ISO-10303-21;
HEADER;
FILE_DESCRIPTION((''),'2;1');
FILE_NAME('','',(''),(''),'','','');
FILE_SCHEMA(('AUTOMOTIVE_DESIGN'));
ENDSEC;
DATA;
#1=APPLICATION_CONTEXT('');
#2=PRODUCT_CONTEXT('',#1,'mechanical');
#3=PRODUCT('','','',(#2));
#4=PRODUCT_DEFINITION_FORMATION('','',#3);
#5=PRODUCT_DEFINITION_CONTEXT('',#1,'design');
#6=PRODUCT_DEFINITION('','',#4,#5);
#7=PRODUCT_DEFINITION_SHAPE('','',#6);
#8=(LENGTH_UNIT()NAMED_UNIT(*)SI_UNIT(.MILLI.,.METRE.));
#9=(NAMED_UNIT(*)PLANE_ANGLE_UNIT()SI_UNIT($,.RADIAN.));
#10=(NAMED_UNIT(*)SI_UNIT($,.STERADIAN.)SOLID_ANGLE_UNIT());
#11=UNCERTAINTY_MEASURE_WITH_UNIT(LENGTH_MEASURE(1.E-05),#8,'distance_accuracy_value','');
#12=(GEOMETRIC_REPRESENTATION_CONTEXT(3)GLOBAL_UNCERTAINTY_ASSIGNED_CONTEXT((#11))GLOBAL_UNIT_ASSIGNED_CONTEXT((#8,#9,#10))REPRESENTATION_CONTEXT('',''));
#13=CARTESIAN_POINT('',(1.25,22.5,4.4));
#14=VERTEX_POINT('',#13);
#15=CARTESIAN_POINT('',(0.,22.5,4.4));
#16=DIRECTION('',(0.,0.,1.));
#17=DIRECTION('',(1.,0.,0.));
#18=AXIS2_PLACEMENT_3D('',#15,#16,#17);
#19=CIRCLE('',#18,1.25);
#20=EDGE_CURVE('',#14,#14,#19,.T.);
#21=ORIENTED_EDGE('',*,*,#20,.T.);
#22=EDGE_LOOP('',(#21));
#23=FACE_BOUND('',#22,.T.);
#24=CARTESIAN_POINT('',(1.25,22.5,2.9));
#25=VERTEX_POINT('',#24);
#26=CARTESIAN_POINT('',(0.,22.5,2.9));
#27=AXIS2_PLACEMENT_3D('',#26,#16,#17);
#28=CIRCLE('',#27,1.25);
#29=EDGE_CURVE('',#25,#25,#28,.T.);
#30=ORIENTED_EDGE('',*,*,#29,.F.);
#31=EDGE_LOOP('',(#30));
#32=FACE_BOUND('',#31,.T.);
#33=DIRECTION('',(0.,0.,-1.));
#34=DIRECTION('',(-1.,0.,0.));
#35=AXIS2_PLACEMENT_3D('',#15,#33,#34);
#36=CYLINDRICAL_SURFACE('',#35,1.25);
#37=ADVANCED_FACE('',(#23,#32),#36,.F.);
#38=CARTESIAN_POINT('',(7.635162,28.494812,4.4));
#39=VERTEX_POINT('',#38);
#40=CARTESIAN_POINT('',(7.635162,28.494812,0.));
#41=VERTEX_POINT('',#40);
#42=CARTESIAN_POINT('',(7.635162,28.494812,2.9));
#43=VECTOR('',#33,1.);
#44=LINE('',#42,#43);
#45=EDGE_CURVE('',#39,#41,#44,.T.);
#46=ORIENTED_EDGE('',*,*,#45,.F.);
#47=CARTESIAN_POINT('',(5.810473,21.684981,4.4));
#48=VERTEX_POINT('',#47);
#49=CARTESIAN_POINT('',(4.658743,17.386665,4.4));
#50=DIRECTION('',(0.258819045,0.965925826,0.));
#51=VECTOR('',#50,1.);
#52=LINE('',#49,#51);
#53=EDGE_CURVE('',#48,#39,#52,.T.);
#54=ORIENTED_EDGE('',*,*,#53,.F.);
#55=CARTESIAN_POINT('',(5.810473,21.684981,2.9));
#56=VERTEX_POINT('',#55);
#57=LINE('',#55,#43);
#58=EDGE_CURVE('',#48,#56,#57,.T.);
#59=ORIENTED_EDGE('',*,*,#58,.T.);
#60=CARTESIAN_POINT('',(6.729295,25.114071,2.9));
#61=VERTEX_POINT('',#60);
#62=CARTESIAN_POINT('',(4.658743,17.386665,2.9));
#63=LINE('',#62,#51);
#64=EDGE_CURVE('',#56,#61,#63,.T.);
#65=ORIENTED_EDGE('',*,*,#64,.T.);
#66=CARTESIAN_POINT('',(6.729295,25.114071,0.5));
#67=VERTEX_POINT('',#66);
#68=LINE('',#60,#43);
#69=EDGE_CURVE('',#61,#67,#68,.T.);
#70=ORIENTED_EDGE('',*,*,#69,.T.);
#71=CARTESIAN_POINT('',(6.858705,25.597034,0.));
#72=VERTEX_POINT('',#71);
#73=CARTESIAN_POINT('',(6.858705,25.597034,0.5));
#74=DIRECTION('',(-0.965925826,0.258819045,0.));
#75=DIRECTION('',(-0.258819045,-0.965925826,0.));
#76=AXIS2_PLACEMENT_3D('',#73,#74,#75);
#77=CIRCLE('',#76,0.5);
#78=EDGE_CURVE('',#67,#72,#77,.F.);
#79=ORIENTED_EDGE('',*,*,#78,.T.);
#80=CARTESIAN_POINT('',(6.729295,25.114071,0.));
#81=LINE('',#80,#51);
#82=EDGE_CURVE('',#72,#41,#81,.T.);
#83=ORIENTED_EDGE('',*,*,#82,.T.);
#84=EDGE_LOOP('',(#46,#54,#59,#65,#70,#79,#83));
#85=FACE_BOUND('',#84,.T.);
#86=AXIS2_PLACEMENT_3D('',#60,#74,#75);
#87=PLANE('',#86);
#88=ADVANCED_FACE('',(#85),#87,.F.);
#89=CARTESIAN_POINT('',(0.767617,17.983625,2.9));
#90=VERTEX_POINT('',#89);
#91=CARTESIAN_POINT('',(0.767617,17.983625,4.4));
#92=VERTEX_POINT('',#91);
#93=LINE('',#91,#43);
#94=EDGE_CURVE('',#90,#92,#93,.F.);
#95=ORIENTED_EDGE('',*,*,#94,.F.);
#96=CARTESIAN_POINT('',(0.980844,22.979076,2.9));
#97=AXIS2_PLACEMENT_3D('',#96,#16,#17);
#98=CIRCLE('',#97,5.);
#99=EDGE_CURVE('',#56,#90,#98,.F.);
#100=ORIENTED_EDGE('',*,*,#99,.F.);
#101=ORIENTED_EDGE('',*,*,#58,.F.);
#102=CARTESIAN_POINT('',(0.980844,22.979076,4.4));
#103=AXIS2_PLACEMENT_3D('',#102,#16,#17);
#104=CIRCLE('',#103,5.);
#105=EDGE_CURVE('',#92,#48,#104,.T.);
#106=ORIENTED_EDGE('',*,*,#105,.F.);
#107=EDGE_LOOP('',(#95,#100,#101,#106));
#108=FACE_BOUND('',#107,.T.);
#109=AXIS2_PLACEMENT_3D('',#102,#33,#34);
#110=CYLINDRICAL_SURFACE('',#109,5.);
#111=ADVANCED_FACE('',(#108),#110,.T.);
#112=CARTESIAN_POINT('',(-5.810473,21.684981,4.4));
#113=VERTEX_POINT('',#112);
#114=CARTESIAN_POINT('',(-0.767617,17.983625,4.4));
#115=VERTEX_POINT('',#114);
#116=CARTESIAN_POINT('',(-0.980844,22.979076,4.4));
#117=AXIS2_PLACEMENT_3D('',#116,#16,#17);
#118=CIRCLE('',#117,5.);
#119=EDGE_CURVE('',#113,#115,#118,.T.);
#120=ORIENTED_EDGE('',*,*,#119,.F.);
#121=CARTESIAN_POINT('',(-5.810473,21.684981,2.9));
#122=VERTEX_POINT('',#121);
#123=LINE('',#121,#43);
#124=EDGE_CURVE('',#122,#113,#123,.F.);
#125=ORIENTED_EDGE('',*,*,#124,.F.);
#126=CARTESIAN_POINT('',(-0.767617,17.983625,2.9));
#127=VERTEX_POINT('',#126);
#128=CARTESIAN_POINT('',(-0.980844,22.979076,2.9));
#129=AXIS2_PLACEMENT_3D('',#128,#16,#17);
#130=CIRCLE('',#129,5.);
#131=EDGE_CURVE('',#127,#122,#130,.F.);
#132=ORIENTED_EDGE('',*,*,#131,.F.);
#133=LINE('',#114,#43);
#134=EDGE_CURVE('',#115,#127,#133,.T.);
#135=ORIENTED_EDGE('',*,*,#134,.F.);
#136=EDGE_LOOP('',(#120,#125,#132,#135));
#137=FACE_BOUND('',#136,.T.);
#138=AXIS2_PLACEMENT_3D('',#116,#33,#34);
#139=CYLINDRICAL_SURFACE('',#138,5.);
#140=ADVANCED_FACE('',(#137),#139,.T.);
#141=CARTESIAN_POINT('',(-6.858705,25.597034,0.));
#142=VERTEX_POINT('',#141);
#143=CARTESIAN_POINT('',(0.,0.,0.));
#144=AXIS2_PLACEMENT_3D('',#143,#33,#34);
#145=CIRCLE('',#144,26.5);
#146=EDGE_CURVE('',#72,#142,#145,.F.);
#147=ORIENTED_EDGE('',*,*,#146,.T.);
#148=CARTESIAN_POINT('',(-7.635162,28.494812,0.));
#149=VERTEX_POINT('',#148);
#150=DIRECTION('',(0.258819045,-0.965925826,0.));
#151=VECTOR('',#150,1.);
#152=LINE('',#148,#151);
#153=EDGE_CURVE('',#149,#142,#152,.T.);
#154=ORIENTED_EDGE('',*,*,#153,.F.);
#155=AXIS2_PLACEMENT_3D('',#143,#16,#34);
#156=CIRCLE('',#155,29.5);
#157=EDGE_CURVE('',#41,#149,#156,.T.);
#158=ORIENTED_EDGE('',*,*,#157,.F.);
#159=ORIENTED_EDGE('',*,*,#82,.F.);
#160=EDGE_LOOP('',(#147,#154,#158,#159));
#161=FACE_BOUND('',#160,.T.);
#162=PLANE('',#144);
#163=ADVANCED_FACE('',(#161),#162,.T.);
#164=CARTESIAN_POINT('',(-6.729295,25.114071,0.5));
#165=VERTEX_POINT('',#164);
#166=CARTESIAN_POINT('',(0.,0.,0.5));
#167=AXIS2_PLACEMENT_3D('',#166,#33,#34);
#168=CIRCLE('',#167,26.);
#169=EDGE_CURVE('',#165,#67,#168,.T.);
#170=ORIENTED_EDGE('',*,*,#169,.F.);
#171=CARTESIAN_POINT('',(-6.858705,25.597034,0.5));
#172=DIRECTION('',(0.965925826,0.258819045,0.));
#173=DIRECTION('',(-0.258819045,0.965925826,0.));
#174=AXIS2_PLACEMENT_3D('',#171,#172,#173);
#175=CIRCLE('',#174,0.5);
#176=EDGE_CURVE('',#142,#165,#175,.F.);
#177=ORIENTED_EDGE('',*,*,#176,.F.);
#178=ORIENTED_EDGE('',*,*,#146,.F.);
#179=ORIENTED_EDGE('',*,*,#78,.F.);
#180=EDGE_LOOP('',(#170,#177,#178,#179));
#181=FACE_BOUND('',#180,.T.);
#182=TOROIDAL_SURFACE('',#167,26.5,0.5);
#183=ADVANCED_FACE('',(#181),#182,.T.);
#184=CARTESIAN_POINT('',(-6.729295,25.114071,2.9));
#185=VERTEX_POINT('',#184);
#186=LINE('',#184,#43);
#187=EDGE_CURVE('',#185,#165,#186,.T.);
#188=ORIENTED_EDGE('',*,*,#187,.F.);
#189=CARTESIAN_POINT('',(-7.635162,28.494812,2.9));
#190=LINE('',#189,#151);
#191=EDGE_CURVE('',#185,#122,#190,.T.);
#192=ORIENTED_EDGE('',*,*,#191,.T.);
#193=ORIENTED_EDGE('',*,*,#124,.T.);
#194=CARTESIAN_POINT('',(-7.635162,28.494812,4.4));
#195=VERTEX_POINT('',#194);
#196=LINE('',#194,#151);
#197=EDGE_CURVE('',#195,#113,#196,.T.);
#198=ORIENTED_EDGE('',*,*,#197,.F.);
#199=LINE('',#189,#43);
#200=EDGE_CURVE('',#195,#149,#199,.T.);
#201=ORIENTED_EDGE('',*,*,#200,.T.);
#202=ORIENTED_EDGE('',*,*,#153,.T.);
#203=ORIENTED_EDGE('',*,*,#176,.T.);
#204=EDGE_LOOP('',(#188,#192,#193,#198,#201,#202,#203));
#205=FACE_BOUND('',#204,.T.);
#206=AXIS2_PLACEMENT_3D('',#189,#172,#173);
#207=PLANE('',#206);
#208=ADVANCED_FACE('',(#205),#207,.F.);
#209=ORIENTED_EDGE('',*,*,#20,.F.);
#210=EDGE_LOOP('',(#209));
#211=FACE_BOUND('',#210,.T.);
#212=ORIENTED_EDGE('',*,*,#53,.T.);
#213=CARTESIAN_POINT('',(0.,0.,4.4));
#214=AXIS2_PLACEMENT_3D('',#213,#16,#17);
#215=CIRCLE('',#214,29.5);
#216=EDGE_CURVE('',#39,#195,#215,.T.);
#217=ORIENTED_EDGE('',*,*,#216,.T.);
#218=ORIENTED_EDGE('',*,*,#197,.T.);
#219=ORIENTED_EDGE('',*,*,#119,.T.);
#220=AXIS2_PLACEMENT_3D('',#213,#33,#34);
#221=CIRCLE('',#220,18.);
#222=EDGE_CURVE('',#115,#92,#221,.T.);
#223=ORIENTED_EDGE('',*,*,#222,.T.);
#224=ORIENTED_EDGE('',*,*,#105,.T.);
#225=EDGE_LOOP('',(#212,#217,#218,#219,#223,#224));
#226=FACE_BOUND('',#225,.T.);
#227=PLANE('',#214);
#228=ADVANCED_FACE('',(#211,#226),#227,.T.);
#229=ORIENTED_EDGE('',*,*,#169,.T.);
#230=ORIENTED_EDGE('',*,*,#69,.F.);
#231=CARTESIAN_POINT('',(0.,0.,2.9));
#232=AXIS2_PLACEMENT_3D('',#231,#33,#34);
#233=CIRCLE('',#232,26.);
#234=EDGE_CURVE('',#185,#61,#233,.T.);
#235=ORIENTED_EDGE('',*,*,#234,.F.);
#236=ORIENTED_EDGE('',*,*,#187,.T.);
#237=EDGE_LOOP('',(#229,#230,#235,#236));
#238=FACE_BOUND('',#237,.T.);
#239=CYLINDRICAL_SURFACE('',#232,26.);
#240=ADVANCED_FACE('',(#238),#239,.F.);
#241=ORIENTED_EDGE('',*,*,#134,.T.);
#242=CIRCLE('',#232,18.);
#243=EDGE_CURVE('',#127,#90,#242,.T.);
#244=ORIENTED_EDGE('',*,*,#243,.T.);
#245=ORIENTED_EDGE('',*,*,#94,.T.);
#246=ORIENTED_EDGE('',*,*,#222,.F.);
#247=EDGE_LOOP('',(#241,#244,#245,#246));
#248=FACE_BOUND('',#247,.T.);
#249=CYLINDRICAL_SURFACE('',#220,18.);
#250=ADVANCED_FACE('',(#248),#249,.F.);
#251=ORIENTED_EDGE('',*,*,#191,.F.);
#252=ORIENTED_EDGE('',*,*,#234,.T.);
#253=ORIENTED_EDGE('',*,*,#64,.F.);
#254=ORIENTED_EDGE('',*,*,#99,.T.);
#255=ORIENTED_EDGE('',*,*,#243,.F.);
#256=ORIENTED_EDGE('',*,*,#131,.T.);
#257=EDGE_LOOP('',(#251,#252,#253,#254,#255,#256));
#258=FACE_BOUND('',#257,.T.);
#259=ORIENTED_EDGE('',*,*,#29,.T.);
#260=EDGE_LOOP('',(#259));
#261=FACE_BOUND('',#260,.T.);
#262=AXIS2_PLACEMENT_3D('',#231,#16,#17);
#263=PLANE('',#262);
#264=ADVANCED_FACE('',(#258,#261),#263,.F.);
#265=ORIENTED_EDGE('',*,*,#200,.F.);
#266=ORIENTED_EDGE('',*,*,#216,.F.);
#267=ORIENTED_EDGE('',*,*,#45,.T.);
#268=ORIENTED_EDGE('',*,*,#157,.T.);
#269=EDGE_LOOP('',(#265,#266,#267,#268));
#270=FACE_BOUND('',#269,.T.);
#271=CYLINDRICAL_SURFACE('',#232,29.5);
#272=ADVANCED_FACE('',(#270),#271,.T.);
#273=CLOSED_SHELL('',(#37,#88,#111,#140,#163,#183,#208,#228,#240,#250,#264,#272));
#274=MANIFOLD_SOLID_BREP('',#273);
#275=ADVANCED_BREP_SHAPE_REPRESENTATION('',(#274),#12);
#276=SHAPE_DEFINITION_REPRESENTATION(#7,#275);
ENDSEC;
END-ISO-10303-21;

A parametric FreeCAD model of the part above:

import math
import FreeCAD as App
import Part
import Sketcher
from FreeCAD import Vector
Q = App.Units.Quantity


def edges_at(feature, points):
    """Names of the edges that pass closest to the given points."""
    edges = feature.Shape.Edges
    near = lambda p: min(range(len(edges)), key=lambda i: edges[i].distToShape(Part.Vertex(*p))[0])
    return sorted({f"Edge{near(p) + 1}" for p in points})

doc = App.newDocument("Part")
body = doc.addObject("PartDesign::Body", "Body")

sketch1 = doc.addObject("Sketcher::SketchObject", "Sketch")
body.addObject(sketch1)
sketch1.AttachmentSupport = (doc.XY_Plane, [""])
sketch1.MapMode = "FlatFace"
sketch1.addGeometry(Part.LineSegment(Vector(-7.635162, 28.494812, 0), Vector(-6.729295, 25.114071, 0)), False)
sketch1.addGeometry(Part.ArcOfCircle(Part.Circle(Vector(0, 0, 0), Vector(0, 0, 1), 26), math.radians(75), math.radians(105)), False)
sketch1.addGeometry(Part.LineSegment(Vector(6.729295, 25.114071, 0), Vector(7.635162, 28.494812, 0)), False)
sketch1.addGeometry(Part.ArcOfCircle(Part.Circle(Vector(0, 0, 0), Vector(0, 0, 1), 29.5), math.radians(75), math.radians(105)), False)
sketch1.addConstraint(Sketcher.Constraint("Coincident", 0, 2, 1, 2))
sketch1.addConstraint(Sketcher.Constraint("Coincident", 1, 1, 2, 1))
sketch1.addConstraint(Sketcher.Constraint("Coincident", 2, 2, 3, 1))
sketch1.addConstraint(Sketcher.Constraint("Coincident", 3, 2, 0, 1))
sketch1.addConstraint(Sketcher.Constraint("Coincident", 1, 3, -1, 1))
sketch1.addConstraint(Sketcher.Constraint("Coincident", 3, 3, -1, 1))
sketch1.addConstraint(Sketcher.Constraint("Horizontal", 0, 2, 1, 1))
sketch1.addConstraint(Sketcher.Constraint("Horizontal", 2, 2, 3, 2))
sketch1.addConstraint(Sketcher.Constraint("Radius", 1, 26.0))
sketch1.addConstraint(Sketcher.Constraint("Radius", 3, 29.5))
sketch1.addConstraint(Sketcher.Constraint("Angle", 0, Q("-75 deg")))
sketch1.addConstraint(Sketcher.Constraint("DistanceY", -1, 1, 0, 2, 25.114071))
pad1 = doc.addObject("PartDesign::Pad", "Pad")
body.addObject(pad1)
pad1.Profile = sketch1
pad1.Length = 2.9

sketch2 = doc.addObject("Sketcher::SketchObject", "Sketch001")
body.addObject(sketch2)
sketch2.AttachmentSupport = (doc.XY_Plane, [""])
sketch2.MapMode = "FlatFace"
sketch2.AttachmentOffset = App.Placement(Vector(0, 0, 2.9), App.Rotation())
sketch2.addGeometry(Part.LineSegment(Vector(-7.635162, 28.494812, 0), Vector(-4.658743, 17.386665, 0)), False)
sketch2.addGeometry(Part.ArcOfCircle(Part.Circle(Vector(0, 0, 0), Vector(0, 0, 1), 18), math.radians(75), math.radians(105)), False)
sketch2.addGeometry(Part.LineSegment(Vector(4.658743, 17.386665, 0), Vector(7.635162, 28.494812, 0)), False)
sketch2.addGeometry(Part.ArcOfCircle(Part.Circle(Vector(0, 0, 0), Vector(0, 0, 1), 29.5), math.radians(75), math.radians(105)), False)
sketch2.addGeometry(Part.Circle(Vector(0, 22.5, 0), Vector(0, 0, 1), 1.25), False)
sketch2.addConstraint(Sketcher.Constraint("Coincident", 0, 2, 1, 2))
sketch2.addConstraint(Sketcher.Constraint("Coincident", 1, 1, 2, 1))
sketch2.addConstraint(Sketcher.Constraint("Coincident", 2, 2, 3, 1))
sketch2.addConstraint(Sketcher.Constraint("Coincident", 3, 2, 0, 1))
sketch2.addConstraint(Sketcher.Constraint("Coincident", 1, 3, -1, 1))
sketch2.addConstraint(Sketcher.Constraint("Coincident", 3, 3, -1, 1))
sketch2.addConstraint(Sketcher.Constraint("PointOnObject", 4, 3, -2))
sketch2.addConstraint(Sketcher.Constraint("Horizontal", 0, 2, 1, 1))
sketch2.addConstraint(Sketcher.Constraint("Horizontal", 2, 2, 3, 2))
sketch2.addConstraint(Sketcher.Constraint("Radius", 1, 18.0))
sketch2.addConstraint(Sketcher.Constraint("Diameter", 4, 2.5))
sketch2.addConstraint(Sketcher.Constraint("Radius", 3, 29.5))
sketch2.addConstraint(Sketcher.Constraint("Angle", 0, Q("-75 deg")))
sketch2.addConstraint(Sketcher.Constraint("DistanceY", -1, 1, 4, 3, 22.5))
sketch2.addConstraint(Sketcher.Constraint("DistanceX", -1, 1, 2, 2, 7.635162))
pad2 = doc.addObject("PartDesign::Pad", "Pad001")
body.addObject(pad2)
pad2.Profile = sketch2
pad2.Length = 1.5
doc.recompute()

fillet = doc.addObject("PartDesign::Fillet", "Fillet")
body.addObject(fillet)
fillet.Base = (pad2, edges_at(pad2, [(-4.659, 17.387, 3.65), (4.659, 17.387, 3.65)]))
fillet.Radius = 5
doc.recompute()

fillet2 = doc.addObject("PartDesign::Fillet", "Fillet001")
body.addObject(fillet2)
fillet2.Base = (fillet, edges_at(fillet, [(0, 26, 0)]))
fillet2.Radius = 0.5

doc.recompute()
